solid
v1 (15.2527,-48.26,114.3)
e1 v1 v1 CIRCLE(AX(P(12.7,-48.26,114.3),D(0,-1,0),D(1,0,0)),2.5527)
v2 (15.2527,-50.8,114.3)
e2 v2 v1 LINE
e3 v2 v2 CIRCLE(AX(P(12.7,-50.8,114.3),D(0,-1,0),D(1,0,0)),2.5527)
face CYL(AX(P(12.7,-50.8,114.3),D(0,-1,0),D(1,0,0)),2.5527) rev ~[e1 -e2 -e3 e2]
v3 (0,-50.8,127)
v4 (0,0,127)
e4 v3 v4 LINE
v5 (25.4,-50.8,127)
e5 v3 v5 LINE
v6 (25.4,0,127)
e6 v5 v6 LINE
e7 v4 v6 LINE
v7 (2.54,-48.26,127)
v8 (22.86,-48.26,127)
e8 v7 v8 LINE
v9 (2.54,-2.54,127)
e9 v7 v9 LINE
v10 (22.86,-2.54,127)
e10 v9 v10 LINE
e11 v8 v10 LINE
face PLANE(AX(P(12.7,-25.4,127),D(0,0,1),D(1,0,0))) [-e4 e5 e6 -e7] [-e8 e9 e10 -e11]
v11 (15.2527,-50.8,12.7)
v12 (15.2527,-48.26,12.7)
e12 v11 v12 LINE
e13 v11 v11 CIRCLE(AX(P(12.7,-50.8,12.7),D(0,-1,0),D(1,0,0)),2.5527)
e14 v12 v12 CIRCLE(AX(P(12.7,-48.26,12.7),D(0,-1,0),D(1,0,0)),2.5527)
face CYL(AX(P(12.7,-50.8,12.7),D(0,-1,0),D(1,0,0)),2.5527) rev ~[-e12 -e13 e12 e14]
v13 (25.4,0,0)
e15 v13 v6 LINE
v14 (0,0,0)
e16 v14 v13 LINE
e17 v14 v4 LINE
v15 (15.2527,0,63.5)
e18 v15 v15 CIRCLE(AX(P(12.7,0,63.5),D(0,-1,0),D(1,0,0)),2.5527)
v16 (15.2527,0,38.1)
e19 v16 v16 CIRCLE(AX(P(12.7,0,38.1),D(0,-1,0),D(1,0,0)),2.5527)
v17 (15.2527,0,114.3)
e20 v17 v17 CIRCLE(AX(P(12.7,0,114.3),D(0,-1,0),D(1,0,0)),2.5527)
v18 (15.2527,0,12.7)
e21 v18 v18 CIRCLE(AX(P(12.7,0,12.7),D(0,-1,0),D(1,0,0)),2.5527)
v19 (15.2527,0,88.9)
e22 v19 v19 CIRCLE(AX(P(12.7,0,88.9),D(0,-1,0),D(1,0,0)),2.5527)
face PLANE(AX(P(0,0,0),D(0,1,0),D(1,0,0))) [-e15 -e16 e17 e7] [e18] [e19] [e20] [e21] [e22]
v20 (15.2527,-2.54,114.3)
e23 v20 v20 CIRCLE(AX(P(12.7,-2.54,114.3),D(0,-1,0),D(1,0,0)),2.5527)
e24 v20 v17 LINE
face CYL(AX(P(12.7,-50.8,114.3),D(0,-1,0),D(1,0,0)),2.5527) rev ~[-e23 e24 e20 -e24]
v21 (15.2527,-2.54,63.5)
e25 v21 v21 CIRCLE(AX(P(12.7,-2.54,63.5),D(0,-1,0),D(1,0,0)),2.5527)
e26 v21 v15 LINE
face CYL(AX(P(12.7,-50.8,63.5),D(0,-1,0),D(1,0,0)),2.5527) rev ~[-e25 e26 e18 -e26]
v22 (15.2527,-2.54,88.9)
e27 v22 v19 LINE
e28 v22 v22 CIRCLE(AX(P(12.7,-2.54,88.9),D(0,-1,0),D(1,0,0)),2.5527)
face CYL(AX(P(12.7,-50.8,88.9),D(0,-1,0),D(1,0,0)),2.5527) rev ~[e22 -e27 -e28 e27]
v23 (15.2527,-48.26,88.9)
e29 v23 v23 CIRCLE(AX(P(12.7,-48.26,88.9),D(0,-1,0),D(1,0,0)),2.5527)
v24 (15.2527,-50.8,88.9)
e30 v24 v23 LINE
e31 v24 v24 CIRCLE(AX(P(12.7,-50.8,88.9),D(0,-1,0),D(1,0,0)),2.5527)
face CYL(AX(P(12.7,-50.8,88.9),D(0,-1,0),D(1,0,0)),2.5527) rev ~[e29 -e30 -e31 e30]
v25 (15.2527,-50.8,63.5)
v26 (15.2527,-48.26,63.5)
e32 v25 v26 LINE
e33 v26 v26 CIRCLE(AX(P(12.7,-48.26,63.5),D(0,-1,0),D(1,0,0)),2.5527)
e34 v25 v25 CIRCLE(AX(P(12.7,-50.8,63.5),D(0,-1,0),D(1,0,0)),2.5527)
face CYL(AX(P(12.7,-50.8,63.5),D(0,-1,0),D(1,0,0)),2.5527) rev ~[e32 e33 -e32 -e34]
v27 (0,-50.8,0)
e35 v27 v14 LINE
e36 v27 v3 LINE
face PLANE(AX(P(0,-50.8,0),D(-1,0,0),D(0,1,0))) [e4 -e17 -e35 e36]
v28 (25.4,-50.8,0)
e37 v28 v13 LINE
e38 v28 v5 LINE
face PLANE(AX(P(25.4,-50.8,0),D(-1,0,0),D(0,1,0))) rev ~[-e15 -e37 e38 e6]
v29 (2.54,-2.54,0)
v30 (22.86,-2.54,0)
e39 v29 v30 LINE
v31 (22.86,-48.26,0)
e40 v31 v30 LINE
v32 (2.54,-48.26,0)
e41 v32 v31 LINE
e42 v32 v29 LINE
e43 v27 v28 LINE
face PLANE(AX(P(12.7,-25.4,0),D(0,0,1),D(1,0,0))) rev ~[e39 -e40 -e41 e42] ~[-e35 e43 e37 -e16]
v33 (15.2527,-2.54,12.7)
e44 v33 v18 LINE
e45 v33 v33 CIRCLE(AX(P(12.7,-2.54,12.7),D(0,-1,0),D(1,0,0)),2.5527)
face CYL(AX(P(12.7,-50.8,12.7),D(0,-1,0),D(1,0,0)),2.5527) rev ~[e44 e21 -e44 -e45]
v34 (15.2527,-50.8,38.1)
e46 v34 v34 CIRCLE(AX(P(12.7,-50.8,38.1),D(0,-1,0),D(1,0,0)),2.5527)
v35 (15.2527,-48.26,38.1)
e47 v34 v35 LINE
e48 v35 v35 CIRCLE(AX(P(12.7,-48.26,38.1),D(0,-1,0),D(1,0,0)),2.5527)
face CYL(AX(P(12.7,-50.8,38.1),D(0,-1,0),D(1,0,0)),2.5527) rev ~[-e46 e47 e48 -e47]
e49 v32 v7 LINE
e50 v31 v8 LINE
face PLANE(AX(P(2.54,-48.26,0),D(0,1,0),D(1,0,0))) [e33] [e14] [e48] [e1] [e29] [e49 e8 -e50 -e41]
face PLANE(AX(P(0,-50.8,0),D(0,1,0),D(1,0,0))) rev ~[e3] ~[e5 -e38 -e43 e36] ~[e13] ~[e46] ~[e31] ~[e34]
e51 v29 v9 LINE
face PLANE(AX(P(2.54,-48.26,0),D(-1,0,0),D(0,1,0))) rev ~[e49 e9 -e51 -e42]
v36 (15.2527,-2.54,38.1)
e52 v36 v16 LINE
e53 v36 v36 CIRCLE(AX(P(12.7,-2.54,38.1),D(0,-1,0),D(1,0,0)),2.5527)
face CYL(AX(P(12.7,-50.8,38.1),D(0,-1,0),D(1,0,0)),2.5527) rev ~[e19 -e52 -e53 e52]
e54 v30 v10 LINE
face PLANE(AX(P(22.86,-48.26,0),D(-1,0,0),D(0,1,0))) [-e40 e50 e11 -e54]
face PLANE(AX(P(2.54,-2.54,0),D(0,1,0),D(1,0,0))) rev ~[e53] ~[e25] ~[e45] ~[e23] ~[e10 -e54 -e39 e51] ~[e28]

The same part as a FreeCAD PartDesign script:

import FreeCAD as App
import Part
import Sketcher
from FreeCAD import Vector
Q = App.Units.Quantity

doc = App.newDocument("Part")
body = doc.addObject("PartDesign::Body", "Body")

sketch1 = doc.addObject("Sketcher::SketchObject", "Sketch")
body.addObject(sketch1)
sketch1.AttachmentSupport = (doc.XY_Plane, [""])
sketch1.MapMode = "FlatFace"
sketch1.addGeometry(Part.LineSegment(Vector(0, 0, 0), Vector(0, -50.8, 0)), False)
sketch1.addGeometry(Part.LineSegment(Vector(0, -50.8, 0), Vector(25.4, -50.8, 0)), False)
sketch1.addGeometry(Part.LineSegment(Vector(25.4, -50.8, 0), Vector(25.4, 0, 0)), False)
sketch1.addGeometry(Part.LineSegment(Vector(25.4, 0, 0), Vector(0, 0, 0)), False)
sketch1.addGeometry(Part.LineSegment(Vector(22.86, -48.26, 0), Vector(2.54, -48.26, 0)), False)
sketch1.addGeometry(Part.LineSegment(Vector(2.54, -48.26, 0), Vector(2.54, -2.54, 0)), False)
sketch1.addGeometry(Part.LineSegment(Vector(2.54, -2.54, 0), Vector(22.86, -2.54, 0)), False)
sketch1.addGeometry(Part.LineSegment(Vector(22.86, -2.54, 0), Vector(22.86, -48.26, 0)), False)
sketch1.addConstraint(Sketcher.Constraint("Coincident", 0, 2, 1, 1))
sketch1.addConstraint(Sketcher.Constraint("Coincident", 1, 2, 2, 1))
sketch1.addConstraint(Sketcher.Constraint("Coincident", 2, 2, 3, 1))
sketch1.addConstraint(Sketcher.Constraint("Coincident", 3, 2, 0, 1))
sketch1.addConstraint(Sketcher.Constraint("Coincident", 4, 2, 5, 1))
sketch1.addConstraint(Sketcher.Constraint("Coincident", 5, 2, 6, 1))
sketch1.addConstraint(Sketcher.Constraint("Coincident", 6, 2, 7, 1))
sketch1.addConstraint(Sketcher.Constraint("Coincident", 7, 2, 4, 1))
sketch1.addConstraint(Sketcher.Constraint("Vertical", 0))
sketch1.addConstraint(Sketcher.Constraint("Horizontal", 1))
sketch1.addConstraint(Sketcher.Constraint("Vertical", 2))
sketch1.addConstraint(Sketcher.Constraint("Horizontal", 3))
sketch1.addConstraint(Sketcher.Constraint("Horizontal", 4))
sketch1.addConstraint(Sketcher.Constraint("Vertical", 5))
sketch1.addConstraint(Sketcher.Constraint("Horizontal", 6))
sketch1.addConstraint(Sketcher.Constraint("Vertical", 7))
sketch1.addConstraint(Sketcher.Constraint("Coincident", 3, 2, -1, 1))
sketch1.addConstraint(Sketcher.Constraint("DistanceX", 1, 1, 1, 2, Q("1 in")))
sketch1.addConstraint(Sketcher.Constraint("DistanceY", 0, 2, 0, 1, Q("2 in")))
sketch1.addConstraint(Sketcher.Constraint("DistanceX", 4, 2, 4, 1, Q("0.8 in")))
sketch1.addConstraint(Sketcher.Constraint("DistanceY", 5, 1, 5, 2, Q("1.8 in")))
sketch1.addConstraint(Sketcher.Constraint("DistanceX", -1, 1, 4, 2, Q("0.1 in")))
sketch1.addConstraint(Sketcher.Constraint("DistanceY", 4, 2, -1, 1, Q("1.9 in")))
pad1 = doc.addObject("PartDesign::Pad", "Pad")
body.addObject(pad1)
pad1.Profile = sketch1
pad1.Length = Q("5 in")

sketch2 = doc.addObject("Sketcher::SketchObject", "Sketch001")
body.addObject(sketch2)
sketch2.AttachmentSupport = (doc.XZ_Plane, [""])
sketch2.MapMode = "FlatFace"
sketch2.AttachmentOffset = App.Placement(Vector(0, 0, 2 * 25.4), App.Rotation())
sketch2.addGeometry(Part.Circle(Vector(12.7, 88.9, 0), Vector(0, 0, 1), 2.5527), False)
sketch2.addGeometry(Part.Circle(Vector(12.7, 63.5, 0), Vector(0, 0, 1), 2.5527), False)
sketch2.addGeometry(Part.Circle(Vector(12.7, 38.1, 0), Vector(0, 0, 1), 2.5527), False)
sketch2.addGeometry(Part.Circle(Vector(12.7, 12.7, 0), Vector(0, 0, 1), 2.5527), False)
sketch2.addGeometry(Part.Circle(Vector(12.7, 114.3, 0), Vector(0, 0, 1), 2.5527), False)
sketch2.addGeometry(Part.Circle(Vector(12.7, 139.7, 0), Vector(0, 0, 1), 2.5527), False)
sketch2.addConstraint(Sketcher.Constraint("Equal", 0, 1))
sketch2.addConstraint(Sketcher.Constraint("Equal", 1, 2))
sketch2.addConstraint(Sketcher.Constraint("Equal", 2, 3))
sketch2.addConstraint(Sketcher.Constraint("Equal", 3, 4))
sketch2.addConstraint(Sketcher.Constraint("Equal", 4, 5))
sketch2.addConstraint(Sketcher.Constraint("Vertical", 0, 3, 1, 3))
sketch2.addConstraint(Sketcher.Constraint("Vertical", 1, 3, 2, 3))
sketch2.addConstraint(Sketcher.Constraint("Vertical", 2, 3, 3, 3))
sketch2.addConstraint(Sketcher.Constraint("Vertical", 3, 3, 4, 3))
sketch2.addConstraint(Sketcher.Constraint("Vertical", 4, 3, 5, 3))
sketch2.addConstraint(Sketcher.Constraint("Diameter", 0, Q("0.201 in")))
sketch2.addConstraint(Sketcher.Constraint("DistanceY", 1, 3, 0, 3, Q("1 in")))
sketch2.addConstraint(Sketcher.Constraint("DistanceY", 2, 3, 1, 3, Q("1 in")))
sketch2.addConstraint(Sketcher.Constraint("DistanceY", 3, 3, 2, 3, Q("1 in")))
sketch2.addConstraint(Sketcher.Constraint("DistanceY", 0, 3, 4, 3, Q("1 in")))
sketch2.addConstraint(Sketcher.Constraint("DistanceY", 4, 3, 5, 3, Q("1 in")))
sketch2.addConstraint(Sketcher.Constraint("DistanceX", -1, 1, 0, 3, Q("0.5 in")))
sketch2.addConstraint(Sketcher.Constraint("DistanceY", -1, 1, 0, 3, Q("3.5 in")))
pocket1 = doc.addObject("PartDesign::Pocket", "Pocket")
body.addObject(pocket1)
pocket1.Profile = sketch2
pocket1.Length = Q("3 in")

doc.recompute()
